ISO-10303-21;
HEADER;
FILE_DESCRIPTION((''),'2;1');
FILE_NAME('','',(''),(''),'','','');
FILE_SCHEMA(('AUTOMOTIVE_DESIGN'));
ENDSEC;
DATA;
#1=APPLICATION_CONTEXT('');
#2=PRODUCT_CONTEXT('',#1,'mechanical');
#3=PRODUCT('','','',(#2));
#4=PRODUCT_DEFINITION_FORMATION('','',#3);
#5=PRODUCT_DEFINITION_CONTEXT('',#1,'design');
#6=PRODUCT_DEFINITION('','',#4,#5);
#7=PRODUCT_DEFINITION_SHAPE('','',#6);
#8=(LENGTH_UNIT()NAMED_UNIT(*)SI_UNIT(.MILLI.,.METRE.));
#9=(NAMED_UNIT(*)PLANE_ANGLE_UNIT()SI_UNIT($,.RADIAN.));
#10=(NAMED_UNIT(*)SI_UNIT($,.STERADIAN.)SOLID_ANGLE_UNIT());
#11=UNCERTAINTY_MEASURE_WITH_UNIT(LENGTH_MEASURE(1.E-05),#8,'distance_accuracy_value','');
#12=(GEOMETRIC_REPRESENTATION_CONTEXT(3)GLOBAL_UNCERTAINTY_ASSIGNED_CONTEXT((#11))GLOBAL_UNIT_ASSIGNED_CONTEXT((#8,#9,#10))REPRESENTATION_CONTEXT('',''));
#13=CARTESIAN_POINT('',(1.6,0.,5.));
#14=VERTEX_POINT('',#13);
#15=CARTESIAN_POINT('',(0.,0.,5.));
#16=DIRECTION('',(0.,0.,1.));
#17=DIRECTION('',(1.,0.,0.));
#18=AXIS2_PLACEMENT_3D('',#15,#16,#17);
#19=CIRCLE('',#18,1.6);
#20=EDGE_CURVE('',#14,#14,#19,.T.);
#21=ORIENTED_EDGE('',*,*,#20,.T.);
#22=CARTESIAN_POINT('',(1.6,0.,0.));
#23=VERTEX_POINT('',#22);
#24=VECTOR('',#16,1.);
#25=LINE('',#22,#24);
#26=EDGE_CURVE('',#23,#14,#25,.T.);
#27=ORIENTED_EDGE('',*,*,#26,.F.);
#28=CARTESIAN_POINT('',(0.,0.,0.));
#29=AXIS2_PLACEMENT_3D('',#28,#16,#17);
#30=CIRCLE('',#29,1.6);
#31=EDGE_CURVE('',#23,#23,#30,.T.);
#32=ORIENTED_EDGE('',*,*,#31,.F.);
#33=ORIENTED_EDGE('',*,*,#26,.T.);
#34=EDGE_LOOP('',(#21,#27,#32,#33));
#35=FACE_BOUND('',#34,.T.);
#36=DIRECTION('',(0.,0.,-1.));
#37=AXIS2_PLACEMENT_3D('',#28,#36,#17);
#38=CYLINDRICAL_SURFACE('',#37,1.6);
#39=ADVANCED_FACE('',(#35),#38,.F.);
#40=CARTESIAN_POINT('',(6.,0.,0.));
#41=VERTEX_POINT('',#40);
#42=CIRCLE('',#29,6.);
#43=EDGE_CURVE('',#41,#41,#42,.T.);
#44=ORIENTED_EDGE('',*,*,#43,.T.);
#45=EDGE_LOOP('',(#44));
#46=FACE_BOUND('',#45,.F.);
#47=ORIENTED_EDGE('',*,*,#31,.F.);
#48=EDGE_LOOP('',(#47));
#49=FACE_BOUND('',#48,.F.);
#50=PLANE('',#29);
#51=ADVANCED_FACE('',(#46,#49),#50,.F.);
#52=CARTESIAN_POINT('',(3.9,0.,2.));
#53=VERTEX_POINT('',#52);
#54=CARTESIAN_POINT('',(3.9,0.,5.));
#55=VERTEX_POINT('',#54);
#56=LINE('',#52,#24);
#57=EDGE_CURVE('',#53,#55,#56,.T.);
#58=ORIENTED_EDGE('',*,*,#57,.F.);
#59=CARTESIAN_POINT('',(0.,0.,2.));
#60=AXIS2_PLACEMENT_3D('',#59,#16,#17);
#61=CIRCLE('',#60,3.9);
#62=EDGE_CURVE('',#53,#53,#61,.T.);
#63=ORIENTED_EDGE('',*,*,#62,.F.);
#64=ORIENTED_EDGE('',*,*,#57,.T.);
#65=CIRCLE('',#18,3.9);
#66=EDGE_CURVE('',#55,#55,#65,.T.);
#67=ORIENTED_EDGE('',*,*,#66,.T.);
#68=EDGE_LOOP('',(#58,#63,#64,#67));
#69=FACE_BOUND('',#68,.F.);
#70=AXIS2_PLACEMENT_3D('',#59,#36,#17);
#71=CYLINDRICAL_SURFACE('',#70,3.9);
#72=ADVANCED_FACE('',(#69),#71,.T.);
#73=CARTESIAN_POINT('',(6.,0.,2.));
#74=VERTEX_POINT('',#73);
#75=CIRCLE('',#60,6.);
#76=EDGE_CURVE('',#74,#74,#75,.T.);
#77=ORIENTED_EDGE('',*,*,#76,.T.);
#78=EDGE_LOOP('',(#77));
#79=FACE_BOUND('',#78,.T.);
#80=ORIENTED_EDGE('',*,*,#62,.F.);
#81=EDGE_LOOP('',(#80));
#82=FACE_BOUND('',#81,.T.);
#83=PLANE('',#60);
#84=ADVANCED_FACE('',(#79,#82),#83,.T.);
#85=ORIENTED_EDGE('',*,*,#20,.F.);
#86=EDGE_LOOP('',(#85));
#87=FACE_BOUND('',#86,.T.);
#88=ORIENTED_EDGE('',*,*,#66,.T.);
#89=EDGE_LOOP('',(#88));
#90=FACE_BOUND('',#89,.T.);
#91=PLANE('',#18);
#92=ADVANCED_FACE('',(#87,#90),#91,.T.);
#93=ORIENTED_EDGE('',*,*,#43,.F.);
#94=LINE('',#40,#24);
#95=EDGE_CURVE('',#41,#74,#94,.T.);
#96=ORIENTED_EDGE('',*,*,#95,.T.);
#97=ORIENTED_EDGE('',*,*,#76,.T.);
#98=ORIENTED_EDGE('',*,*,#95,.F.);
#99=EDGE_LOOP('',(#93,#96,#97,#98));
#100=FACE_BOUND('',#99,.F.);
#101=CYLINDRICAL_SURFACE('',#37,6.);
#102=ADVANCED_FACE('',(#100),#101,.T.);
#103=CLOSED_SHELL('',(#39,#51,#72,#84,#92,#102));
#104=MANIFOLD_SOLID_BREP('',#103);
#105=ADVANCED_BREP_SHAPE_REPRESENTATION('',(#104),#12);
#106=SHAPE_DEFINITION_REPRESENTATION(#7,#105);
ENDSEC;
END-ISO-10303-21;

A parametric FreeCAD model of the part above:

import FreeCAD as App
import Part
import Sketcher
Q = App.Units.Quantity

doc = App.newDocument("Part")
body = doc.addObject("PartDesign::Body", "Body")

sketch1 = body.newObject("Sketcher::SketchObject", "Sketch")
sketch1.AttachmentSupport = (doc.getObject("XY_Plane"), [""])
sketch1.MapMode = "FlatFace"
sketch1.addGeometry([
    Part.Circle(App.Vector(0, 0, 0), App.Vector(0, 0, 1), 6),
    Part.Circle(App.Vector(0, 0, 0), App.Vector(0, 0, 1), 1.6),
], False)
sketch1.addConstraint([
    Sketcher.Constraint("Coincident", 0, 3, -1, 1),
    Sketcher.Constraint("Coincident", 1, 3, -1, 1),
    Sketcher.Constraint("Diameter", 0, Q("12 mm")),
    Sketcher.Constraint("Diameter", 1, Q("3.2 mm")),
])
pad1 = body.newObject("PartDesign::Pad", "Pad")
pad1.Profile = sketch1
pad1.Length = 2

sketch2 = body.newObject("Sketcher::SketchObject", "Sketch001")
sketch2.AttachmentSupport = (doc.getObject("XY_Plane"), [""])
sketch2.MapMode = "FlatFace"
sketch2.AttachmentOffset = App.Placement(App.Vector(0, 0, 2), App.Rotation())
sketch2.addGeometry([
    Part.Circle(App.Vector(0, 0, 0), App.Vector(0, 0, 1), 3.9),
    Part.Circle(App.Vector(0, 0, 0), App.Vector(0, 0, 1), 1.6),
], False)
sketch2.addConstraint([
    Sketcher.Constraint("Coincident", 0, 3, -1, 1),
    Sketcher.Constraint("Coincident", 1, 3, -1, 1),
    Sketcher.Constraint("Diameter", 0, Q("7.8 mm")),
    Sketcher.Constraint("Diameter", 1, Q("3.2 mm")),
])
pad2 = body.newObject("PartDesign::Pad", "Pad001")
pad2.Profile = sketch2
pad2.Length = 3

doc.recompute()
